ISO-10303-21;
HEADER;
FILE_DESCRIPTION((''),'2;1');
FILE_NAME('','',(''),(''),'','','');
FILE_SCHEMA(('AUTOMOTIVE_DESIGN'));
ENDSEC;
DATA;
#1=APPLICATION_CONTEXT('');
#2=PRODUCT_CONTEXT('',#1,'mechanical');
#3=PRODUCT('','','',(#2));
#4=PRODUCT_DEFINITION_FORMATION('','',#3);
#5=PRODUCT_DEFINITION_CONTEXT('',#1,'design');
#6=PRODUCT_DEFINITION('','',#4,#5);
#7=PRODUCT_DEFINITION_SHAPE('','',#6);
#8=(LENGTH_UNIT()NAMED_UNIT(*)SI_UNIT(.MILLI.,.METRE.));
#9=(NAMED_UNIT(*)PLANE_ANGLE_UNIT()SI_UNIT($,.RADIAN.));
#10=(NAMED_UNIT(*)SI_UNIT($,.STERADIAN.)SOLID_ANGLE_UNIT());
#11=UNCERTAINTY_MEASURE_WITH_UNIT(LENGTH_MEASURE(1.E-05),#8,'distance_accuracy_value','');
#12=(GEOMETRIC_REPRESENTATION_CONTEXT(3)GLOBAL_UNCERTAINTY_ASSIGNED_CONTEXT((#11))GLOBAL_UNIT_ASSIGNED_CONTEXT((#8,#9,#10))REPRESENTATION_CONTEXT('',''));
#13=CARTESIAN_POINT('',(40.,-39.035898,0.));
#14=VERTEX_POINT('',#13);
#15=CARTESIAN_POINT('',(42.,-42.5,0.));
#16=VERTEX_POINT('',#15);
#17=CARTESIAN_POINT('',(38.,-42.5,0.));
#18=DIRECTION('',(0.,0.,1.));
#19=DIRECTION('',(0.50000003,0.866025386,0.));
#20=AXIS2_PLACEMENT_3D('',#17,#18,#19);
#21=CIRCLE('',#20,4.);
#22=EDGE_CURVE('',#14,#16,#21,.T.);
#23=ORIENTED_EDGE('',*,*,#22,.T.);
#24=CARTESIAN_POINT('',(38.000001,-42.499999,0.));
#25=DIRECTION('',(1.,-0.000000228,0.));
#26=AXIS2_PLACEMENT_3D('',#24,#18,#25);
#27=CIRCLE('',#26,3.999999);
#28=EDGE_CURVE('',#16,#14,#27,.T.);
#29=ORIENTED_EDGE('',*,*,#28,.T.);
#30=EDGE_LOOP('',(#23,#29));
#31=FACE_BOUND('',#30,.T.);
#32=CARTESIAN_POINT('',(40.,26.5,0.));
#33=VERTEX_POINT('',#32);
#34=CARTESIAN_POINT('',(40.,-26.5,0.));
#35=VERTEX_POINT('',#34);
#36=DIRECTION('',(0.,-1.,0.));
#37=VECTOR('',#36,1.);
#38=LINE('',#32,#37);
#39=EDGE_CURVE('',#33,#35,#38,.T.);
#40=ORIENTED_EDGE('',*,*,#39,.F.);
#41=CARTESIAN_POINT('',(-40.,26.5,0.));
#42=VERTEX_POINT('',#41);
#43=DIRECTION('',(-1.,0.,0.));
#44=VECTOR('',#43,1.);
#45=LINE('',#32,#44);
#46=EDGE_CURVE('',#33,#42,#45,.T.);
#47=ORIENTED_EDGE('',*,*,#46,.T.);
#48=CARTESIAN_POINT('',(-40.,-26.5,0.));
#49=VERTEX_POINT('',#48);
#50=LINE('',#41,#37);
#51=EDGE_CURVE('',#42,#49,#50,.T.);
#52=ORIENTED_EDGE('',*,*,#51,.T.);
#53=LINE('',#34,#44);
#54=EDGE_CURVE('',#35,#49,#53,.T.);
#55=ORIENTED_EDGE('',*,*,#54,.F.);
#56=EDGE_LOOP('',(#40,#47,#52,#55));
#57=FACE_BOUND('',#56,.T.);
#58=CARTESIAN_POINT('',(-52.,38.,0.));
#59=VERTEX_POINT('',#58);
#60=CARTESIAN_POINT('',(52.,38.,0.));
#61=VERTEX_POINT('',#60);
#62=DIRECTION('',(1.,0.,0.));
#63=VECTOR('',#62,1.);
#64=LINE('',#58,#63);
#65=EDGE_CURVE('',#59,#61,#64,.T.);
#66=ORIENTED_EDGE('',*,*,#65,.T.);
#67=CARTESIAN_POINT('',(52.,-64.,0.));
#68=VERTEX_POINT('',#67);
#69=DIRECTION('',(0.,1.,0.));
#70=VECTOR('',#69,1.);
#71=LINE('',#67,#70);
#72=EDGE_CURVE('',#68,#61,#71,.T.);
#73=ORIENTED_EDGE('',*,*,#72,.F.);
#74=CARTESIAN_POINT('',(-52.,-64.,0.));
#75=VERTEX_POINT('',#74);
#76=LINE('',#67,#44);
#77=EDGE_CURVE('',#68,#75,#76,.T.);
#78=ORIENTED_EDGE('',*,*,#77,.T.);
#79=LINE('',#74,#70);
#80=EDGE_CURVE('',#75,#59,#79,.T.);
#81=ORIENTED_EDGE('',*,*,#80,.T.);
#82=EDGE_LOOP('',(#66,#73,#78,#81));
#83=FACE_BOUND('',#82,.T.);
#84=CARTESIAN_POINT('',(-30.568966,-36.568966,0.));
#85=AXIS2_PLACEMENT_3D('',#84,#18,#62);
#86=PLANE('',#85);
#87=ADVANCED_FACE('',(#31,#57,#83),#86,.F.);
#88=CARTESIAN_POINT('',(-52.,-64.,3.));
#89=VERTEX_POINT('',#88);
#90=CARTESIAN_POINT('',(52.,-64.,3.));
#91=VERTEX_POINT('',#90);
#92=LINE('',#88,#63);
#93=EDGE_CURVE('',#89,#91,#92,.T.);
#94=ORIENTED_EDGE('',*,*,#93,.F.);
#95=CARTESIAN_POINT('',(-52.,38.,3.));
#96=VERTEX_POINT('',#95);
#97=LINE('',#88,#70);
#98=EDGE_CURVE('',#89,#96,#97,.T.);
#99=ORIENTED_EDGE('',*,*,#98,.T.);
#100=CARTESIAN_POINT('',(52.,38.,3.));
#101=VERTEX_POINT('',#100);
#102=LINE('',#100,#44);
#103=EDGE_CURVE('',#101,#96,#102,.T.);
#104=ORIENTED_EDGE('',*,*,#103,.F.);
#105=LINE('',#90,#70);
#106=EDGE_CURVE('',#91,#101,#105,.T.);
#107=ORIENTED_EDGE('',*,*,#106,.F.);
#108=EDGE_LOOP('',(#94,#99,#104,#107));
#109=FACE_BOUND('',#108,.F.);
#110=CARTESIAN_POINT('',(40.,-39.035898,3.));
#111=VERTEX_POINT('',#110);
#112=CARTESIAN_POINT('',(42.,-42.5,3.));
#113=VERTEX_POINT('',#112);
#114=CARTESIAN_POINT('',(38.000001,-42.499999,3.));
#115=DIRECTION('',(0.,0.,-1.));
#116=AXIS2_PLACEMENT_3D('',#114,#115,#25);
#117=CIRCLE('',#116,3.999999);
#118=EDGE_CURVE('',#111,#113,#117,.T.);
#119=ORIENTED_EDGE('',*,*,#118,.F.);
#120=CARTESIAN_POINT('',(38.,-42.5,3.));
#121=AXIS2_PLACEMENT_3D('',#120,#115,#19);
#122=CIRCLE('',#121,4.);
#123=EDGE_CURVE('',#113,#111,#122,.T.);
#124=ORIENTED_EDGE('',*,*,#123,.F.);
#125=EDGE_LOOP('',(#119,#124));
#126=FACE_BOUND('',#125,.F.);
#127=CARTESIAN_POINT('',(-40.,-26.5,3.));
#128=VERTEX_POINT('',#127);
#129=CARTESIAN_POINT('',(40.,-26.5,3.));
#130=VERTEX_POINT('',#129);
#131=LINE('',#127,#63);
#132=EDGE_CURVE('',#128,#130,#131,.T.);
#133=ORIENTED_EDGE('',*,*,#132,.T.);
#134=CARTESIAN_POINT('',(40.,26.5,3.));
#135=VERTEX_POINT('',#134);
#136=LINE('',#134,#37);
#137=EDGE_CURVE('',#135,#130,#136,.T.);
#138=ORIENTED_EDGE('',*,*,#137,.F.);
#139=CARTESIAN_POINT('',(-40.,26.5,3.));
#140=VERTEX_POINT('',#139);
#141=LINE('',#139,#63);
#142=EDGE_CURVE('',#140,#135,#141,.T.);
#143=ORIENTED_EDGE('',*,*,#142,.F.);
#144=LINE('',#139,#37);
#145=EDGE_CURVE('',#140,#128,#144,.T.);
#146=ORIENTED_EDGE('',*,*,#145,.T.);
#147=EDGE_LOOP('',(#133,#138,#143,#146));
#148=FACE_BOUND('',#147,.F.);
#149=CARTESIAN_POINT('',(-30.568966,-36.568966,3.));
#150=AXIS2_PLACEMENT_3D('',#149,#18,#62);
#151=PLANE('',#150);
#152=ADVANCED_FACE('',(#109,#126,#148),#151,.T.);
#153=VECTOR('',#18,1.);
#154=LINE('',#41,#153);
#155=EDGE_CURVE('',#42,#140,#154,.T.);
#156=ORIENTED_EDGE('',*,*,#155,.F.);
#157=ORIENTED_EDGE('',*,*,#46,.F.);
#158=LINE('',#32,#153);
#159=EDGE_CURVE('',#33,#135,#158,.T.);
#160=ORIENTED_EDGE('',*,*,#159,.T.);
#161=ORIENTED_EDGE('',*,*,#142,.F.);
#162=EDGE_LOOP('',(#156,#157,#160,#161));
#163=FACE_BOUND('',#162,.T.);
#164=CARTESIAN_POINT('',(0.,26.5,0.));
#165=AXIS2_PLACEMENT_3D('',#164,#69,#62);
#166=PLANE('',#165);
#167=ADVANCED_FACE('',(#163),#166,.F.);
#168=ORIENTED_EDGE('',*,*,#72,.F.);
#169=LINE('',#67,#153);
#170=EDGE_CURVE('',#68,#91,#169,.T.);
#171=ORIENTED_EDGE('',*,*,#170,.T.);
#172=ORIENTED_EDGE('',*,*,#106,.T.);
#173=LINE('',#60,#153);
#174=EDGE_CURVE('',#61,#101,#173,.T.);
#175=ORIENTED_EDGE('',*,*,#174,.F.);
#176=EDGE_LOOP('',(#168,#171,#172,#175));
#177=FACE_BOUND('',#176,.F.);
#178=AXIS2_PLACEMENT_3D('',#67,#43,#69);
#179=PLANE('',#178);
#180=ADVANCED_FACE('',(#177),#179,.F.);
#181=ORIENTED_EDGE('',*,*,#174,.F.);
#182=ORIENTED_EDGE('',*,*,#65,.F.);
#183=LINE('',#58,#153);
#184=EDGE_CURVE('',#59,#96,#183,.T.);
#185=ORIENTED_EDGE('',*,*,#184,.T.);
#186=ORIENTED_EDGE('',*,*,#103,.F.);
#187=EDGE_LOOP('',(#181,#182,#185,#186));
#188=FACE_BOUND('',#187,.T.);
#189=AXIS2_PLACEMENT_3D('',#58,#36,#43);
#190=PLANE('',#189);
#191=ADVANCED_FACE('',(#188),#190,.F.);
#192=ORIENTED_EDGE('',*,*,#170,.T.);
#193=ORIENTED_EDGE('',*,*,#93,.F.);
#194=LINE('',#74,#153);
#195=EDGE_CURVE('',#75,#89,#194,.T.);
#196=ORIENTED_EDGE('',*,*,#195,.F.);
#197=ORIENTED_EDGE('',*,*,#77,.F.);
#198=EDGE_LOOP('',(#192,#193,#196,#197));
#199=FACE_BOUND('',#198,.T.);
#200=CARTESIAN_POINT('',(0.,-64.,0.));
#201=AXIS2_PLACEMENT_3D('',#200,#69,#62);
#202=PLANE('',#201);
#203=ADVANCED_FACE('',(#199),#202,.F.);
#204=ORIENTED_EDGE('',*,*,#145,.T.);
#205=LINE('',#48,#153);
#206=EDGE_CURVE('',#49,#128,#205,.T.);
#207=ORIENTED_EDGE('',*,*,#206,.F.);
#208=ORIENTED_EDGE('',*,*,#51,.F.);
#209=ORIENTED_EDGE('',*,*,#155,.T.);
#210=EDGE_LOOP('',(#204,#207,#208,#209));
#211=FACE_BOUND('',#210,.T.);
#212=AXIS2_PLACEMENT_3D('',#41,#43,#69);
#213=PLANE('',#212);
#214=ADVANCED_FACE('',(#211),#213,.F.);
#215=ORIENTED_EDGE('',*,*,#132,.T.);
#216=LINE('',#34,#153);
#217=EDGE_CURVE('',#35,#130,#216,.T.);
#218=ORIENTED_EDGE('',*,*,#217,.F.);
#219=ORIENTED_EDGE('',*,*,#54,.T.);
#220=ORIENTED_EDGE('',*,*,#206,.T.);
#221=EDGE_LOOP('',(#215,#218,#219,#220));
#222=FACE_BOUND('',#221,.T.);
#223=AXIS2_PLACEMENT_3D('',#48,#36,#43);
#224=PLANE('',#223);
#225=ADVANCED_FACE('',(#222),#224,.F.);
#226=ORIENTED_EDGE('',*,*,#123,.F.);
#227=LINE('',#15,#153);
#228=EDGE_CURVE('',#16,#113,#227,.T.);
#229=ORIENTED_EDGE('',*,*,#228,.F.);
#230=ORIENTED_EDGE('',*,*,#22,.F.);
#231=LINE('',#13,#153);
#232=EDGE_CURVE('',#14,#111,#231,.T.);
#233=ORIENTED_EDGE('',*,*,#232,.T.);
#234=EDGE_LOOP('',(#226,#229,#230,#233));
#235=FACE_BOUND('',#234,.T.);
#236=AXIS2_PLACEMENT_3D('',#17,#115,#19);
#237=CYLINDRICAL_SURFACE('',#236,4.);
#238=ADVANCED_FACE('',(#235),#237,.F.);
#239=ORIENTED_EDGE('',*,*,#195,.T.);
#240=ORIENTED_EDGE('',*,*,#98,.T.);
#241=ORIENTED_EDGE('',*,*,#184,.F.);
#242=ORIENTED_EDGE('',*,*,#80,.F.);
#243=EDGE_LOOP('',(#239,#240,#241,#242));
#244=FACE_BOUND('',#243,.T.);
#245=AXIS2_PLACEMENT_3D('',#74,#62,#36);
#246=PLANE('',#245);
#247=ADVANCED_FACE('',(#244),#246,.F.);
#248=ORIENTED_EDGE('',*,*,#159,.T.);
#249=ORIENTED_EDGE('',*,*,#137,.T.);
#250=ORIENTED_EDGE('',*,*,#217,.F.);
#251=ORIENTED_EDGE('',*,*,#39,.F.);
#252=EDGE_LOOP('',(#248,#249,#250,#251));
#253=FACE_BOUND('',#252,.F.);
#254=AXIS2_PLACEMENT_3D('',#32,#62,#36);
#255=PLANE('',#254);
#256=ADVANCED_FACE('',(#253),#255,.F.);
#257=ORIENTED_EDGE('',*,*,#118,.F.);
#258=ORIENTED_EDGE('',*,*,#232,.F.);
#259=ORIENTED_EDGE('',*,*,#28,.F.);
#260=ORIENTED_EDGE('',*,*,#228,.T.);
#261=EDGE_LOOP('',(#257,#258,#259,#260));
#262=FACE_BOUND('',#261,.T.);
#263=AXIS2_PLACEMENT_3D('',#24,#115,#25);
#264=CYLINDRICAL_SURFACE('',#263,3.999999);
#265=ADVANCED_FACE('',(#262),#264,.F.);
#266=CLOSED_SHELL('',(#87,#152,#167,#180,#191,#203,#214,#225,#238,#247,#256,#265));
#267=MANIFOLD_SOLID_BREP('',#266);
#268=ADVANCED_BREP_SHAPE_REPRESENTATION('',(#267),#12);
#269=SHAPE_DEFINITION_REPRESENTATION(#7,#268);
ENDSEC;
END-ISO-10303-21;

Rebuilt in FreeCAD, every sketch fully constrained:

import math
import FreeCAD as App
import Part
import Sketcher

V = App.Vector
Q = App.Units.Quantity


def add_polygon(sketch, points):
    """Adds a closed chain of lines whose ends are joined by coincident constraints."""
    first, n = sketch.GeometryCount, len(points)
    for a, b in zip(points, points[1:] + points[:1]):
        sketch.addGeometry(Part.LineSegment(App.Vector(*a, 0), App.Vector(*b, 0)), False)
    for i in range(n):
        sketch.addConstraint(Sketcher.Constraint("Coincident", first + i, 2, first + (i + 1) % n, 1))

doc = App.newDocument("Part")
body = doc.addObject("PartDesign::Body", "Body")

# Sketch on XY plane
sketch1 = doc.addObject("Sketcher::SketchObject", "Sketch")
body.addObject(sketch1)
sketch1.AttachmentSupport = (doc.XY_Plane, [""])
sketch1.MapMode = "FlatFace"
add_polygon(sketch1, [(40, -26), (0, -26), (0, -64), (52, -64), (52, 38), (0, 38), (0, 26), (40, 26)])  # lines 0-7
sketch1.addConstraint([
    Sketcher.Constraint("Horizontal", 0),
    Sketcher.Constraint("Vertical", 1),
    Sketcher.Constraint("Horizontal", 2),
    Sketcher.Constraint("Vertical", 3),
    Sketcher.Constraint("Horizontal", 4),
    Sketcher.Constraint("Vertical", 5),
    Sketcher.Constraint("Horizontal", 6),
    Sketcher.Constraint("Vertical", 7),
    Sketcher.Constraint("Symmetric", 0, 2, 5, 2, -1, 1),
    Sketcher.Constraint("PointOnObject", 0, 2, -2),
    Sketcher.Constraint("DistanceX", 0, 2, 0, 1, Q("40 mm")),
    Sketcher.Constraint("DistanceX", 2, 1, 2, 2, Q("52 mm")),
    Sketcher.Constraint("DistanceY", 3, 1, 3, 2, Q("102 mm")),
    Sketcher.Constraint("DistanceY", 7, 2, 7, 1, Q("53 mm")),
    Sketcher.Constraint("DistanceY", 1, 2, 1, 1, Q("37.5 mm")),
])
pad1 = doc.addObject("PartDesign::Pad", "Pad")
body.addObject(pad1)
pad1.Profile = sketch1
pad1.Length = 3
body2 = doc.addObject("PartDesign::Body", "Body001")
doc.recompute()

body2.BaseFeature = body
doc.recompute()

mirroring = doc.addObject("Part::Mirroring", "Mirroring")
mirroring.Source = body
mirroring.Base = V(0, 0, 0)
mirroring.Normal = V(1, 0, 0)
body3 = doc.addObject("PartDesign::Body", "Body002")
body3.BaseFeature = mirroring
boolean = doc.addObject("PartDesign::Boolean", "Boolean")
body2.addObject(boolean)
boolean.Type = "Fuse"
boolean.addObjects([body3])
doc.recompute()
body4 = doc.addObject("PartDesign::Body", "Body003")

# Sketch on XY plane
sketch2 = doc.addObject("Sketcher::SketchObject", "Sketch001")
body4.addObject(sketch2)
sketch2.AttachmentSupport = (doc.getObject("XY_Plane003"), [""])
sketch2.MapMode = "FlatFace"
sketch2.addGeometry([
    Part.ArcOfCircle(Part.Circle(V(38, -42.5, 0), V(0, 0, 1), 4), math.radians(60), math.radians(360)),
    Part.ArcOfCircle(Part.Circle(V(38, -42.5, 0), V(0, 0, 1), 4), math.radians(0), math.radians(60)),
], False)
sketch2.addConstraint([
    Sketcher.Constraint("Tangent", 0, 1, 1, 2),
    Sketcher.Constraint("Coincident", 1, 1, 0, 2),
    Sketcher.Constraint("Horizontal", 0, 3, 1, 1),
    Sketcher.Constraint("Radius", 0, Q("4 mm")),
    Sketcher.Constraint("DistanceX", -1, 1, 0, 3, Q("38 mm")),
    Sketcher.Constraint("DistanceX", -1, 1, 0, 1, Q("40 mm")),
    Sketcher.Constraint("DistanceY", 0, 3, -1, 1, Q("42.5 mm")),
])
pad2 = doc.addObject("PartDesign::Pad", "Pad001")
body4.addObject(pad2)
pad2.Profile = sketch2
pad2.Length = 25
doc.recompute()

boolean2 = doc.addObject("PartDesign::Boolean", "Boolean001")
body2.addObject(boolean2)
boolean2.Type = "Cut"
boolean2.addObjects([body4])
mirroring.Visibility = False

doc.recompute()
